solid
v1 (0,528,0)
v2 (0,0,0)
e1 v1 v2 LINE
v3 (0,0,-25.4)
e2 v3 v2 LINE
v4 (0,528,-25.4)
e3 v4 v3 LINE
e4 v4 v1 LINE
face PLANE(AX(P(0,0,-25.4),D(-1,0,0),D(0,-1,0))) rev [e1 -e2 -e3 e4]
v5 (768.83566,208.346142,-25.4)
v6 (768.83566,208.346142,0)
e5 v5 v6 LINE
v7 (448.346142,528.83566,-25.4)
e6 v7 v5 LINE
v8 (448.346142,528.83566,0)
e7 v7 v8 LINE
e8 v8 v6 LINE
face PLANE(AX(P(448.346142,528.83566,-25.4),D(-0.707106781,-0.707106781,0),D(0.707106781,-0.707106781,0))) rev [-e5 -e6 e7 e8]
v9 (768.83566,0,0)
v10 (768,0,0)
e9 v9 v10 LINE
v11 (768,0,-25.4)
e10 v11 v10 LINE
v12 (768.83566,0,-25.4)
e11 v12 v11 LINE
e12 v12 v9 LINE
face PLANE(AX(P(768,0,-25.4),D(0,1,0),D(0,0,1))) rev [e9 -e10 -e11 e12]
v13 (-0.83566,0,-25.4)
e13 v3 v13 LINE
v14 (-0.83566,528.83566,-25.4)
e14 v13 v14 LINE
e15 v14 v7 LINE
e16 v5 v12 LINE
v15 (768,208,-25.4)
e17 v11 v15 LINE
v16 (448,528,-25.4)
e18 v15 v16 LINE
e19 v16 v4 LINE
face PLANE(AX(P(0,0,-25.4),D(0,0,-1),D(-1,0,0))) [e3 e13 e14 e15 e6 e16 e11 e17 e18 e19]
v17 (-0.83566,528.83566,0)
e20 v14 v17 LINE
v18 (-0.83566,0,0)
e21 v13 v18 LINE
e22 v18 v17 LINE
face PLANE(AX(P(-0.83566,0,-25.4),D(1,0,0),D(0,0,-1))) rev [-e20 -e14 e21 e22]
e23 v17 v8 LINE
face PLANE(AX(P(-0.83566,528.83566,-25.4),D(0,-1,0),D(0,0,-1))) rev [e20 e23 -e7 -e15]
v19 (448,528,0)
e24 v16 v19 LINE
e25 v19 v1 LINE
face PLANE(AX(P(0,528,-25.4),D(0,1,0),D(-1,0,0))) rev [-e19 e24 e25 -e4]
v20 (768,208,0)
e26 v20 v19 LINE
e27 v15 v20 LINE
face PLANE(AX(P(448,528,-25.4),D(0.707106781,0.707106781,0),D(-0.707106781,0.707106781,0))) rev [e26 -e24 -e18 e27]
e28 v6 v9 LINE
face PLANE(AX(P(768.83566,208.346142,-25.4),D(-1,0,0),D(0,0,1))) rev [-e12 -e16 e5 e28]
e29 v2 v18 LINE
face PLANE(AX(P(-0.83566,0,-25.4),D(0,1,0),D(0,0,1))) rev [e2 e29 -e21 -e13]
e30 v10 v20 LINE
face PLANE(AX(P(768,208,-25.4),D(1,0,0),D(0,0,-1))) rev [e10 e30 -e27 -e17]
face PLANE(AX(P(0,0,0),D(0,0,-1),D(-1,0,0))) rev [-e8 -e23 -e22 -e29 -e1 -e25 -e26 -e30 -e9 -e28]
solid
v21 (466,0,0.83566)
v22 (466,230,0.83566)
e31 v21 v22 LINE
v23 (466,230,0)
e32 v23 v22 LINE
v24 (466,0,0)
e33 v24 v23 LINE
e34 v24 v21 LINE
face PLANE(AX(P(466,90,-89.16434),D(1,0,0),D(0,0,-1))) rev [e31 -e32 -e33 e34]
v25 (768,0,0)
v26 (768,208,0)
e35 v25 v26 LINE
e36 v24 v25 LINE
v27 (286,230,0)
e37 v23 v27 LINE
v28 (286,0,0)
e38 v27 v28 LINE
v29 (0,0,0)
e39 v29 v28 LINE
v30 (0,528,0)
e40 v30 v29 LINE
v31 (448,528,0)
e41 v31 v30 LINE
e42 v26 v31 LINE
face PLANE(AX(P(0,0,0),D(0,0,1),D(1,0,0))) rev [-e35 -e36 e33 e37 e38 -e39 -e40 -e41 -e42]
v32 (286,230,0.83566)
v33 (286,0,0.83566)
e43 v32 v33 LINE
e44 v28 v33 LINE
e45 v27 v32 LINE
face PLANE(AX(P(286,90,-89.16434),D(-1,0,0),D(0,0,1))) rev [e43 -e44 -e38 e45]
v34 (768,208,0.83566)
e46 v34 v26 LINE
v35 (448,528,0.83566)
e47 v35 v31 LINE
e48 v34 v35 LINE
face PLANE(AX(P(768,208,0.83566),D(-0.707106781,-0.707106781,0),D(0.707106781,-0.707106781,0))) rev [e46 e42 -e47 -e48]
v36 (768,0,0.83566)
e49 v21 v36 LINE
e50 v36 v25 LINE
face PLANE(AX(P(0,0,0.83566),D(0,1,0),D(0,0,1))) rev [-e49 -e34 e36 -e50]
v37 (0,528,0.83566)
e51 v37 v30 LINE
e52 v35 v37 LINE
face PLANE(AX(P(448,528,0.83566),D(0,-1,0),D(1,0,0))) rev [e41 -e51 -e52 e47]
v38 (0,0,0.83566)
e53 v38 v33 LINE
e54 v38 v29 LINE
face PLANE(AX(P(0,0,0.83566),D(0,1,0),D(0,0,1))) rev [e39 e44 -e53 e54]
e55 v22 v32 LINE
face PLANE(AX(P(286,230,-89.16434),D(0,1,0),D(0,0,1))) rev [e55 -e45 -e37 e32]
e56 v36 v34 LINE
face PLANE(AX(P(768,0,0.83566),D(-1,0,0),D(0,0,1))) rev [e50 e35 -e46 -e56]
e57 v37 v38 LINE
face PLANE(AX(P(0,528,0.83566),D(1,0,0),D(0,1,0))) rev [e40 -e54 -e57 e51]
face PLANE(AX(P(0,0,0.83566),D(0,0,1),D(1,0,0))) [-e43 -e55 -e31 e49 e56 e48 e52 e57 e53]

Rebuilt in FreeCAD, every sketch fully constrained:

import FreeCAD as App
import Part
import Sketcher
from FreeCAD import Vector
Q = App.Units.Quantity

doc = App.newDocument("Part")
params = doc.addObject("Spreadsheet::Sheet", "Params")
for row, (alias, value) in enumerate([
    ("sketch1_width", "768 mm"),
    ("sketch1_width2", "448 mm"),
    ("sketch1_height", "208 mm"),
    ("sketch1_height2", "528 mm"),
    ("pad1_length", "0.83566 mm"),
    ("sketch2_width", "180 mm"),
    ("sketch2_height", "230 mm"),
    ("pocket1_length", "90 mm"),
    ("sketch3_width", "448 mm"),
    ("sketch3_height", "208 mm"),
    ("sketch3_height2", "528 mm"),
    ("pad2_length", "25.4 mm"),
], start=1):
    params.set(f"A{row}", alias)
    params.set(f"B{row}", "=" + value)
    params.setAlias(f"B{row}", alias)

body = doc.addObject("PartDesign::Body", "Body")

sketch1 = body.newObject("Sketcher::SketchObject", "Sketch")
sketch1.AttachmentSupport = (doc.getObject("XY_Plane"), [""])
sketch1.MapMode = "FlatFace"
sketch1.addGeometry(Part.LineSegment(Vector(0, 0, 0), Vector(768, 0, 0)), False)
sketch1.addGeometry(Part.LineSegment(Vector(768, 0, 0), Vector(768, 208, 0)), False)
sketch1.addGeometry(Part.LineSegment(Vector(768, 208, 0), Vector(448, 528, 0)), False)
sketch1.addGeometry(Part.LineSegment(Vector(448, 528, 0), Vector(0, 528, 0)), False)
sketch1.addGeometry(Part.LineSegment(Vector(0, 528, 0), Vector(0, 0, 0)), False)
sketch1.addConstraint(Sketcher.Constraint("Coincident", 0, 2, 1, 1))
sketch1.addConstraint(Sketcher.Constraint("Coincident", 1, 2, 2, 1))
sketch1.addConstraint(Sketcher.Constraint("Coincident", 2, 2, 3, 1))
sketch1.addConstraint(Sketcher.Constraint("Coincident", 3, 2, 4, 1))
sketch1.addConstraint(Sketcher.Constraint("Coincident", 4, 2, 0, 1))
sketch1.addConstraint(Sketcher.Constraint("Horizontal", 0))
sketch1.addConstraint(Sketcher.Constraint("Vertical", 1))
sketch1.addConstraint(Sketcher.Constraint("Horizontal", 3))
sketch1.addConstraint(Sketcher.Constraint("Vertical", 4))
sketch1.addConstraint(Sketcher.Constraint("Coincident", 4, 2, -1, 1))
sketch1.addConstraint(Sketcher.Constraint("DistanceX", 0, 1, 0, 2, 768.0))
sketch1.addConstraint(Sketcher.Constraint("DistanceX", 3, 2, 3, 1, 448.0))
sketch1.addConstraint(Sketcher.Constraint("DistanceY", 1, 1, 1, 2, 208.0))
sketch1.addConstraint(Sketcher.Constraint("DistanceY", 4, 2, 4, 1, 528.0))
sketch1.setExpression("Constraints[10]", "Params.sketch1_width")
sketch1.setExpression("Constraints[11]", "Params.sketch1_width2")
sketch1.setExpression("Constraints[12]", "Params.sketch1_height")
sketch1.setExpression("Constraints[13]", "Params.sketch1_height2")
pad1 = body.newObject("PartDesign::Pad", "Pad")
pad1.Profile = sketch1
pad1.setExpression("Length", "Params.pad1_length")

sketch2 = body.newObject("Sketcher::SketchObject", "Sketch001")
sketch2.AttachmentSupport = (doc.getObject("XY_Plane"), [""])
sketch2.MapMode = "FlatFace"
sketch2.AttachmentOffset = App.Placement(Vector(0, 0, 0.83566), App.Rotation())
sketch2.addGeometry(Part.LineSegment(Vector(286, 230, 0), Vector(286, 0, 0)), False)
sketch2.addGeometry(Part.LineSegment(Vector(286, 0, 0), Vector(466, 0, 0)), False)
sketch2.addGeometry(Part.LineSegment(Vector(466, 0, 0), Vector(466, 230, 0)), False)
sketch2.addGeometry(Part.LineSegment(Vector(466, 230, 0), Vector(286, 230, 0)), False)
sketch2.addConstraint(Sketcher.Constraint("Coincident", 0, 2, 1, 1))
sketch2.addConstraint(Sketcher.Constraint("Coincident", 1, 2, 2, 1))
sketch2.addConstraint(Sketcher.Constraint("Coincident", 2, 2, 3, 1))
sketch2.addConstraint(Sketcher.Constraint("Coincident", 3, 2, 0, 1))
sketch2.addConstraint(Sketcher.Constraint("Vertical", 0))
sketch2.addConstraint(Sketcher.Constraint("Horizontal", 1))
sketch2.addConstraint(Sketcher.Constraint("Vertical", 2))
sketch2.addConstraint(Sketcher.Constraint("Horizontal", 3))
sketch2.addConstraint(Sketcher.Constraint("PointOnObject", 0, 2, -1))
sketch2.addConstraint(Sketcher.Constraint("DistanceX", 1, 1, 1, 2, 180.0))
sketch2.addConstraint(Sketcher.Constraint("DistanceY", 0, 2, 0, 1, 230.0))
sketch2.addConstraint(Sketcher.Constraint("DistanceX", -1, 1, 0, 2, 286.0))
sketch2.setExpression("Constraints[9]", "Params.sketch2_width")
sketch2.setExpression("Constraints[10]", "Params.sketch2_height")
pocket1 = body.newObject("PartDesign::Pocket", "Pocket")
pocket1.Profile = sketch2
pocket1.setExpression("Length", "Params.pocket1_length")
body2 = doc.addObject("PartDesign::Body", "Body001")

sketch3 = body2.newObject("Sketcher::SketchObject", "Sketch002")
sketch3.AttachmentSupport = (doc.getObject("XY_Plane001"), [""])
sketch3.MapMode = "FlatFace"
sketch3.addGeometry(Part.LineSegment(Vector(-0.83566, 0, 0), Vector(-0.83566, 528.83566, 0)), False)
sketch3.addGeometry(Part.LineSegment(Vector(-0.83566, 528.83566, 0), Vector(448.346142, 528.83566, 0)), False)
sketch3.addGeometry(Part.LineSegment(Vector(448.346142, 528.83566, 0), Vector(768.83566, 208.346142, 0)), False)
sketch3.addGeometry(Part.LineSegment(Vector(768.83566, 208.346142, 0), Vector(768.83566, 0, 0)), False)
sketch3.addGeometry(Part.LineSegment(Vector(768.83566, 0, 0), Vector(768, 0, 0)), False)
sketch3.addGeometry(Part.LineSegment(Vector(768, 0, 0), Vector(768, 208, 0)), False)
sketch3.addGeometry(Part.LineSegment(Vector(768, 208, 0), Vector(448, 528, 0)), False)
sketch3.addGeometry(Part.LineSegment(Vector(448, 528, 0), Vector(0, 528, 0)), False)
sketch3.addGeometry(Part.LineSegment(Vector(0, 528, 0), Vector(0, 0, 0)), False)
sketch3.addGeometry(Part.LineSegment(Vector(0, 0, 0), Vector(-0.83566, 0, 0)), False)
sketch3.addConstraint(Sketcher.Constraint("Coincident", 0, 2, 1, 1))
sketch3.addConstraint(Sketcher.Constraint("Coincident", 1, 2, 2, 1))
sketch3.addConstraint(Sketcher.Constraint("Coincident", 2, 2, 3, 1))
sketch3.addConstraint(Sketcher.Constraint("Coincident", 3, 2, 4, 1))
sketch3.addConstraint(Sketcher.Constraint("Coincident", 4, 2, 5, 1))
sketch3.addConstraint(Sketcher.Constraint("Coincident", 5, 2, 6, 1))
sketch3.addConstraint(Sketcher.Constraint("Coincident", 6, 2, 7, 1))
sketch3.addConstraint(Sketcher.Constraint("Coincident", 7, 2, 8, 1))
sketch3.addConstraint(Sketcher.Constraint("Coincident", 8, 2, 9, 1))
sketch3.addConstraint(Sketcher.Constraint("Coincident", 9, 2, 0, 1))
sketch3.addConstraint(Sketcher.Constraint("Vertical", 0))
sketch3.addConstraint(Sketcher.Constraint("Horizontal", 1))
sketch3.addConstraint(Sketcher.Constraint("Vertical", 3))
sketch3.addConstraint(Sketcher.Constraint("Horizontal", 4))
sketch3.addConstraint(Sketcher.Constraint("Vertical", 5))
sketch3.addConstraint(Sketcher.Constraint("Horizontal", 7))
sketch3.addConstraint(Sketcher.Constraint("Vertical", 8))
sketch3.addConstraint(Sketcher.Constraint("Horizontal", 9))
sketch3.addConstraint(Sketcher.Constraint("Coincident", 8, 2, -1, 1))
sketch3.addConstraint(Sketcher.Constraint("PointOnObject", 3, 2, -1))
sketch3.addConstraint(Sketcher.Constraint("Parallel", 2, 6))
sketch3.addConstraint(Sketcher.Constraint("Equal", 4, 9))
sketch3.addConstraint(Sketcher.Constraint("DistanceX", 7, 2, 7, 1, 448.0))
sketch3.addConstraint(Sketcher.Constraint("DistanceY", 5, 1, 5, 2, 208.0))
sketch3.addConstraint(Sketcher.Constraint("DistanceY", 8, 2, 8, 1, 528.0))
sketch3.addConstraint(Sketcher.Constraint("Angle", 2, Q("-45 deg")))
sketch3.addConstraint(Sketcher.Constraint("DistanceX", 1, 1, 1, 2, 449.181802))
sketch3.addConstraint(Sketcher.Constraint("DistanceX", 4, 2, 4, 1, 0.83566))
sketch3.addConstraint(Sketcher.Constraint("DistanceY", 0, 1, 0, 2, 528.83566))
sketch3.setExpression("Constraints[22]", "Params.sketch3_width")
sketch3.setExpression("Constraints[23]", "Params.sketch3_height")
sketch3.setExpression("Constraints[24]", "Params.sketch3_height2")
pad2 = body2.newObject("PartDesign::Pad", "Pad001")
pad2.Profile = sketch3
pad2.setExpression("Length", "Params.pad2_length")
pad2.Reversed = True

doc.recompute()
